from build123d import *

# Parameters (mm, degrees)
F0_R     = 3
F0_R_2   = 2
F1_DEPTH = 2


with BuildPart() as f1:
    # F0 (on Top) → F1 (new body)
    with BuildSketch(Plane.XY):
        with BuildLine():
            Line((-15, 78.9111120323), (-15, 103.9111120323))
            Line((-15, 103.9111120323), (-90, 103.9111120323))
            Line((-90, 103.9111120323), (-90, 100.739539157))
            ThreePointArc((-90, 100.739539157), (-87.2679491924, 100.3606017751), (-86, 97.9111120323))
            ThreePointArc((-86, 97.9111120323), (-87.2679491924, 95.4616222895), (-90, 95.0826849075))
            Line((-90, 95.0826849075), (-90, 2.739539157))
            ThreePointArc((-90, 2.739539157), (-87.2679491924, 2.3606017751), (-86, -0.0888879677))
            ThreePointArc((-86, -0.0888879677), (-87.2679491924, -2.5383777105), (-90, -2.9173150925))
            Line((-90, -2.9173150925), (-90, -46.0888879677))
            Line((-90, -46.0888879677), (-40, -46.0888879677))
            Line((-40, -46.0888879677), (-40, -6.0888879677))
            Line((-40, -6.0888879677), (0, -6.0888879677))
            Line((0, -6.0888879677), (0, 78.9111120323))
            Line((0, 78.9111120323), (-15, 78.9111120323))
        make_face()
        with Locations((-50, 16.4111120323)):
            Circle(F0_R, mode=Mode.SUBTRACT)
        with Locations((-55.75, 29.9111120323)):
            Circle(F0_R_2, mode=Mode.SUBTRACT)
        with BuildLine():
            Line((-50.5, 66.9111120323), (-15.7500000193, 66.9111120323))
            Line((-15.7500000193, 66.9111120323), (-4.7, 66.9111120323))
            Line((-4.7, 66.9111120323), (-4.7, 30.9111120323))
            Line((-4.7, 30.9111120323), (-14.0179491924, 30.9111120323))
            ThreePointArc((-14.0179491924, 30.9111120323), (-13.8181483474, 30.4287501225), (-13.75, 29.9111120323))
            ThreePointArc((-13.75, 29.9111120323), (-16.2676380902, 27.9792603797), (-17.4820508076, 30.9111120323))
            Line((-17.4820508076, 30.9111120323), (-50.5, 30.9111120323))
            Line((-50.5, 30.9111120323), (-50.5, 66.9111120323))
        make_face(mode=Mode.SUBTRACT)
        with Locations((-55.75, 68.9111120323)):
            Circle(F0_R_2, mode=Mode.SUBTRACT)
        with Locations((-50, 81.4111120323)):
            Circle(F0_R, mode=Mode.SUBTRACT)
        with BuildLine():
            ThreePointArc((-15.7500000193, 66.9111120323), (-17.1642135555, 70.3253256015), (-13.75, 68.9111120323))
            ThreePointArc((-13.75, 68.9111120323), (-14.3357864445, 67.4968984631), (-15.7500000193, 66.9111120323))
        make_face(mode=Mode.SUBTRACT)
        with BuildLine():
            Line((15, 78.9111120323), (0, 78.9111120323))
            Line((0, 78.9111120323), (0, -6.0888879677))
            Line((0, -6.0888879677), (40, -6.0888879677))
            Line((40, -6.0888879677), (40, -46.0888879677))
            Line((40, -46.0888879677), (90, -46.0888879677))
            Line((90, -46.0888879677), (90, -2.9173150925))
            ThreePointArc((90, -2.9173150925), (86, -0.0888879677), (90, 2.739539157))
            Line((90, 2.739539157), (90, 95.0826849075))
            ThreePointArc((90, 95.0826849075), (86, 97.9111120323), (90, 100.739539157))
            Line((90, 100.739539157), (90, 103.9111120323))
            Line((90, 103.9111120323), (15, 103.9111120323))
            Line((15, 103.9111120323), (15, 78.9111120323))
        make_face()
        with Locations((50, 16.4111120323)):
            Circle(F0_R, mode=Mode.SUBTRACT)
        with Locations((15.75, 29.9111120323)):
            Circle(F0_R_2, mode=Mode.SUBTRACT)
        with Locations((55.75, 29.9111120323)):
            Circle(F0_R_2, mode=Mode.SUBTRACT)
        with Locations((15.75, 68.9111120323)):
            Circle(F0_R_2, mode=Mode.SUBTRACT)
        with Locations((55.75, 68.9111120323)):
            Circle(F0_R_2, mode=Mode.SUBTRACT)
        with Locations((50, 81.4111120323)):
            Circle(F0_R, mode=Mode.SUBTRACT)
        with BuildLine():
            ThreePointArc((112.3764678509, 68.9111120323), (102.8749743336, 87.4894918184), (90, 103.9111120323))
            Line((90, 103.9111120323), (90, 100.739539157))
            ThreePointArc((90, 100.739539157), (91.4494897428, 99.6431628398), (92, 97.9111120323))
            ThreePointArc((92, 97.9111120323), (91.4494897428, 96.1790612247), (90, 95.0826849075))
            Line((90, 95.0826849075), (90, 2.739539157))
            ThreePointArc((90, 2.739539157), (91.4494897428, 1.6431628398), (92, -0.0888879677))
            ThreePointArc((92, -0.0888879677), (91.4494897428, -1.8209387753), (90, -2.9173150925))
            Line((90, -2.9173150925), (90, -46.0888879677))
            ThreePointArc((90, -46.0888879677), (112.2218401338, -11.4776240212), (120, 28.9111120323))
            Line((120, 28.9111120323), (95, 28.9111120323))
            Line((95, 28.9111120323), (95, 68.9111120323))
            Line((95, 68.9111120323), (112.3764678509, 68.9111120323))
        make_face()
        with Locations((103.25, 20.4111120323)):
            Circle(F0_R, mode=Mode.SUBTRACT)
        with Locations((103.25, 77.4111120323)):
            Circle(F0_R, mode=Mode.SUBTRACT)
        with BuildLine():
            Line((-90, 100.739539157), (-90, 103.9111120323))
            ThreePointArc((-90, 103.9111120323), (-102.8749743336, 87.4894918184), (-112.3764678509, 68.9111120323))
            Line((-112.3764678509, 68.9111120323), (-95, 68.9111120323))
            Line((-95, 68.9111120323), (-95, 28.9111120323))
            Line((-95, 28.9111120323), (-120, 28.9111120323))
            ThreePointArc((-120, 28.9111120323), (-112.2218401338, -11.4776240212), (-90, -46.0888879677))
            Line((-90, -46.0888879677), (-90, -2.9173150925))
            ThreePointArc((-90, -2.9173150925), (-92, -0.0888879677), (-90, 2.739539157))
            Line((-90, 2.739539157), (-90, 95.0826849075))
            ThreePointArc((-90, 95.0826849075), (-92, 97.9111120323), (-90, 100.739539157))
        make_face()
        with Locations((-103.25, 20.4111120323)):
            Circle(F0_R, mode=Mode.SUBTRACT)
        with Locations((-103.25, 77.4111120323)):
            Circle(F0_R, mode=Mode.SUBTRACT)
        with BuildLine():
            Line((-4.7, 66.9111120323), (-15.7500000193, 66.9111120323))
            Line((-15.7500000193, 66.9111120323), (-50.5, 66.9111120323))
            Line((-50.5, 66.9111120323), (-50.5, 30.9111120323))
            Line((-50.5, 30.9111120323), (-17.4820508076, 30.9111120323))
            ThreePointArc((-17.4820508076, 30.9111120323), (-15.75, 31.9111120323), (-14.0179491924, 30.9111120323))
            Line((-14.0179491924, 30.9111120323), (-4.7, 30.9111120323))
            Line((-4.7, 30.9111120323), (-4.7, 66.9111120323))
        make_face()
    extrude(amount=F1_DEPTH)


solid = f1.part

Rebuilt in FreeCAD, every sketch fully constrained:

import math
import FreeCAD as App
import Part
import Sketcher
Q = App.Units.Quantity

doc = App.newDocument("Part")
params = doc.addObject("Spreadsheet::Sheet", "Params")
for row, (alias, value) in enumerate([
    ("sketch1_diameter", "6 mm"),
    ("sketch1_diameter2", "4 mm"),
    ("sketch1_width", "30 mm"),
    ("sketch1_width2", "75 mm"),
    ("sketch1_width3", "25 mm"),
    ("pad1_length", "2 mm"),
], start=1):
    params.set(f"A{row}", alias)
    params.set(f"B{row}", "=" + value)
    params.setAlias(f"B{row}", alias)

body = doc.addObject("PartDesign::Body", "Body")

# Sketch on XY plane
sketch1 = body.newObject("Sketcher::SketchObject", "Sketch")
sketch1.AttachmentSupport = (doc.getObject("XY_Plane"), [""])
sketch1.MapMode = "FlatFace"
sketch1.addGeometry([
    Part.LineSegment(App.Vector(15, 78.911112, 0), App.Vector(-15, 78.911112, 0)),  # 0
    Part.LineSegment(App.Vector(-15, 78.911112, 0), App.Vector(-15, 103.911112, 0)),  # 1
    Part.LineSegment(App.Vector(-15, 103.911112, 0), App.Vector(-90, 103.911112, 0)),  # 2
    Part.ArcOfCircle(Part.Circle(App.Vector(-11.25, 28.911112, 0), App.Vector(0, 0, 1), 108.75), math.radians(136.397181), math.radians(158.419007)),  # 3
    Part.LineSegment(App.Vector(-112.376468, 68.911112, 0), App.Vector(-95, 68.911112, 0)),  # 4
    Part.LineSegment(App.Vector(-95, 68.911112, 0), App.Vector(-95, 28.911112, 0)),  # 5
    Part.LineSegment(App.Vector(-95, 28.911112, 0), App.Vector(-120, 28.911112, 0)),  # 6
    Part.ArcOfCircle(Part.Circle(App.Vector(-11.25, 28.911112, 0), App.Vector(0, 0, 1), 108.75), math.radians(180), math.radians(223.602819)),  # 7
    Part.LineSegment(App.Vector(-90, -46.088888, 0), App.Vector(-40, -46.088888, 0)),  # 8
    Part.LineSegment(App.Vector(-40, -46.088888, 0), App.Vector(-40, -6.088888, 0)),  # 9
    Part.LineSegment(App.Vector(-40, -6.088888, 0), App.Vector(40, -6.088888, 0)),  # 10
    Part.LineSegment(App.Vector(40, -6.088888, 0), App.Vector(40, -46.088888, 0)),  # 11
    Part.LineSegment(App.Vector(40, -46.088888, 0), App.Vector(90, -46.088888, 0)),  # 12
    Part.ArcOfCircle(Part.Circle(App.Vector(11.25, 28.911112, 0), App.Vector(0, 0, 1), 108.75), math.radians(-43.602819), math.radians(0)),  # 13
    Part.LineSegment(App.Vector(120, 28.911112, 0), App.Vector(95, 28.911112, 0)),  # 14
    Part.LineSegment(App.Vector(95, 28.911112, 0), App.Vector(95, 68.911112, 0)),  # 15
    Part.LineSegment(App.Vector(95, 68.911112, 0), App.Vector(112.376468, 68.911112, 0)),  # 16
    Part.ArcOfCircle(Part.Circle(App.Vector(11.25, 28.911112, 0), App.Vector(0, 0, 1), 108.75), math.radians(21.580993), math.radians(43.602819)),  # 17
    Part.LineSegment(App.Vector(90, 103.911112, 0), App.Vector(15, 103.911112, 0)),  # 18
    Part.LineSegment(App.Vector(15, 103.911112, 0), App.Vector(15, 78.911112, 0)),  # 19
    Part.ArcOfCircle(Part.Circle(App.Vector(-89, -0.088888, 0), App.Vector(0, 0, 1), 3), math.radians(-109.471221), math.radians(0)),  # 20
    Part.ArcOfCircle(Part.Circle(App.Vector(-89, -0.088888, 0), App.Vector(0, 0, 1), 3), math.radians(109.471221), math.radians(250.528779)),  # 21
    Part.ArcOfCircle(Part.Circle(App.Vector(-89, -0.088888, 0), App.Vector(0, 0, 1), 3), math.radians(0), math.radians(109.471221)),  # 22
    Part.Circle(App.Vector(-103.25, 20.411112, 0), App.Vector(0, 0, 1), 3),  # 23
    Part.Circle(App.Vector(-50, 16.411112, 0), App.Vector(0, 0, 1), 3),  # 24
    Part.Circle(App.Vector(-55.75, 29.911112, 0), App.Vector(0, 0, 1), 2),  # 25
    Part.ArcOfCircle(Part.Circle(App.Vector(-15.75, 29.911112, 0), App.Vector(0, 0, 1), 2), math.radians(150), math.radians(360)),  # 26
    Part.ArcOfCircle(Part.Circle(App.Vector(-15.75, 29.911112, 0), App.Vector(0, 0, 1), 2), math.radians(30), math.radians(150)),  # 27
    Part.ArcOfCircle(Part.Circle(App.Vector(-15.75, 29.911112, 0), App.Vector(0, 0, 1), 2), math.radians(0), math.radians(30)),  # 28
    Part.Circle(App.Vector(50, 16.411112, 0), App.Vector(0, 0, 1), 3),  # 29
    Part.Circle(App.Vector(89, -0.088888, 0), App.Vector(0, 0, 1), 3),  # 30
    Part.Circle(App.Vector(103.25, 20.411112, 0), App.Vector(0, 0, 1), 3),  # 31
    Part.Circle(App.Vector(15.75, 29.911112, 0), App.Vector(0, 0, 1), 2),  # 32
    Part.Circle(App.Vector(55.75, 29.911112, 0), App.Vector(0, 0, 1), 2),  # 33
    Part.Circle(App.Vector(-55.75, 68.911112, 0), App.Vector(0, 0, 1), 2),  # 34
    Part.ArcOfCircle(Part.Circle(App.Vector(-15.75, 68.911112, 0), App.Vector(0, 0, 1), 2), math.radians(-90.000001), math.radians(0)),  # 35
    Part.ArcOfCircle(Part.Circle(App.Vector(-15.75, 68.911112, 0), App.Vector(0, 0, 1), 2), math.radians(0), math.radians(269.999999)),  # 36
    Part.Circle(App.Vector(-103.25, 77.411112, 0), App.Vector(0, 0, 1), 3),  # 37
    Part.ArcOfCircle(Part.Circle(App.Vector(-89, 97.911112, 0), App.Vector(0, 0, 1), 3), math.radians(-109.471221), math.radians(0)),  # 38
    Part.ArcOfCircle(Part.Circle(App.Vector(-89, 97.911112, 0), App.Vector(0, 0, 1), 3), math.radians(109.471221), math.radians(250.528779)),  # 39
    Part.ArcOfCircle(Part.Circle(App.Vector(-89, 97.911112, 0), App.Vector(0, 0, 1), 3), math.radians(0), math.radians(109.471221)),  # 40
    Part.Circle(App.Vector(-50, 81.411112, 0), App.Vector(0, 0, 1), 3),  # 41
    Part.Circle(App.Vector(15.75, 68.911112, 0), App.Vector(0, 0, 1), 2),  # 42
    Part.Circle(App.Vector(55.75, 68.911112, 0), App.Vector(0, 0, 1), 2),  # 43
    Part.Circle(App.Vector(50, 81.411112, 0), App.Vector(0, 0, 1), 3),  # 44
    Part.Circle(App.Vector(103.25, 77.411112, 0), App.Vector(0, 0, 1), 3),  # 45
    Part.Circle(App.Vector(89, 97.911112, 0), App.Vector(0, 0, 1), 3),  # 46
], False)
sketch1.addConstraint([
    Sketcher.Constraint("Coincident", 0, 2, 1, 1),
    Sketcher.Constraint("Coincident", 1, 2, 2, 1),
    Sketcher.Constraint("Coincident", 2, 2, 3, 1),
    Sketcher.Constraint("Coincident", 3, 2, 4, 1),
    Sketcher.Constraint("Coincident", 4, 2, 5, 1),
    Sketcher.Constraint("Coincident", 5, 2, 6, 1),
    Sketcher.Constraint("Coincident", 6, 2, 7, 1),
    Sketcher.Constraint("Coincident", 7, 2, 8, 1),
    Sketcher.Constraint("Coincident", 8, 2, 9, 1),
    Sketcher.Constraint("Coincident", 9, 2, 10, 1),
    Sketcher.Constraint("Coincident", 10, 2, 11, 1),
    Sketcher.Constraint("Coincident", 11, 2, 12, 1),
    Sketcher.Constraint("Coincident", 12, 2, 13, 1),
    Sketcher.Constraint("Coincident", 13, 2, 14, 1),
    Sketcher.Constraint("Coincident", 14, 2, 15, 1),
    Sketcher.Constraint("Coincident", 15, 2, 16, 1),
    Sketcher.Constraint("Coincident", 16, 2, 17, 1),
    Sketcher.Constraint("Coincident", 17, 2, 18, 1),
    Sketcher.Constraint("Coincident", 18, 2, 19, 1),
    Sketcher.Constraint("Coincident", 19, 2, 0, 1),
    Sketcher.Constraint("Tangent", 20, 1, 21, 2),
    Sketcher.Constraint("Tangent", 21, 1, 22, 2),
    Sketcher.Constraint("Tangent", 22, 1, 20, 2),
    Sketcher.Constraint("Tangent", 26, 1, 27, 2),
    Sketcher.Constraint("Tangent", 27, 1, 28, 2),
    Sketcher.Constraint("Tangent", 28, 1, 26, 2),
    Sketcher.Constraint("Tangent", 35, 1, 36, 2),
    Sketcher.Constraint("Coincident", 36, 1, 35, 2),
    Sketcher.Constraint("Tangent", 38, 1, 39, 2),
    Sketcher.Constraint("Tangent", 39, 1, 40, 2),
    Sketcher.Constraint("Tangent", 40, 1, 38, 2),
    Sketcher.Constraint("Horizontal", 0),
    Sketcher.Constraint("Vertical", 1),
    Sketcher.Constraint("Horizontal", 2),
    Sketcher.Constraint("Horizontal", 4),
    Sketcher.Constraint("Vertical", 5),
    Sketcher.Constraint("Horizontal", 6),
    Sketcher.Constraint("Horizontal", 8),
    Sketcher.Constraint("Vertical", 9),
    Sketcher.Constraint("Horizontal", 10),
    Sketcher.Constraint("Vertical", 11),
    Sketcher.Constraint("Horizontal", 12),
    Sketcher.Constraint("Horizontal", 14),
    Sketcher.Constraint("Vertical", 15),
    Sketcher.Constraint("Horizontal", 16),
    Sketcher.Constraint("Horizontal", 18),
    Sketcher.Constraint("Vertical", 19),
    Sketcher.Constraint("Coincident", 7, 3, 3, 3),
    Sketcher.Constraint("Coincident", 17, 3, 13, 3),
    Sketcher.Constraint("Equal", 3, 7),
    Sketcher.Constraint("Equal", 7, 13),
    Sketcher.Constraint("Equal", 13, 17),
    Sketcher.Constraint("Equal", 22, 23),
    Sketcher.Constraint("Equal", 23, 24),
    Sketcher.Constraint("Equal", 25, 26),
    Sketcher.Constraint("Equal", 24, 29),
    Sketcher.Constraint("Equal", 29, 30),
    Sketcher.Constraint("Equal", 30, 31),
    Sketcher.Constraint("Equal", 28, 32),
    Sketcher.Constraint("Equal", 32, 33),
    Sketcher.Constraint("Equal", 33, 34),
    Sketcher.Constraint("Equal", 34, 35),
    Sketcher.Constraint("Equal", 31, 37),
    Sketcher.Constraint("Equal", 37, 38),
    Sketcher.Constraint("Equal", 40, 41),
    Sketcher.Constraint("Equal", 36, 42),
    Sketcher.Constraint("Equal", 42, 43),
    Sketcher.Constraint("Equal", 41, 44),
    Sketcher.Constraint("Equal", 44, 45),
    Sketcher.Constraint("Equal", 45, 46),
    Sketcher.Constraint("Symmetric", 3, 3, 13, 3, -2),
    Sketcher.Constraint("Symmetric", 24, 3, 29, 3, -2),
    Sketcher.Constraint("Symmetric", 20, 3, 30, 3, -2),
    Sketcher.Constraint("Symmetric", 23, 3, 31, 3, -2),
    Sketcher.Constraint("Symmetric", 26, 3, 32, 3, -2),
    Sketcher.Constraint("Symmetric", 25, 3, 33, 3, -2),
    Sketcher.Constraint("Symmetric", 35, 3, 42, 3, -2),
    Sketcher.Constraint("Symmetric", 34, 3, 43, 3, -2),
    Sketcher.Constraint("Symmetric", 41, 3, 44, 3, -2),
    Sketcher.Constraint("Symmetric", 37, 3, 45, 3, -2),
    Sketcher.Constraint("Symmetric", 38, 3, 46, 3, -2),
    Sketcher.Constraint("Symmetric", 8, 2, 11, 2, -2),
    Sketcher.Constraint("Symmetric", 5, 2, 14, 2, -2),
    Sketcher.Constraint("Symmetric", 1, 2, 18, 2, -2),
    Sketcher.Constraint("Horizontal", 25, 3, 26, 3),
    Sketcher.Constraint("Horizontal", 34, 3, 35, 3),
    Sketcher.Constraint("Horizontal", 43, 3, 3, 2),
    Sketcher.Constraint("Horizontal", 17, 3, 5, 2),
    Sketcher.Constraint("Horizontal", 4, 2, 15, 2),
    Sketcher.Constraint("Horizontal", 30, 3, 22, 1),
    Sketcher.Constraint("Horizontal", 26, 1, 27, 1),
    Sketcher.Constraint("Horizontal", 33, 3, 28, 1),
    Sketcher.Constraint("Horizontal", 16, 2, 36, 1),
    Sketcher.Constraint("Horizontal", 46, 3, 40, 1),
    Sketcher.Constraint("Vertical", 25, 3, 34, 3),
    Sketcher.Constraint("Vertical", 28, 3, 35, 3),
    Sketcher.Constraint("Vertical", 23, 3, 37, 3),
    Sketcher.Constraint("Vertical", 22, 3, 38, 3),
    Sketcher.Constraint("Vertical", 24, 3, 41, 3),
    Sketcher.Constraint("Vertical", 2, 2, 7, 2),
    Sketcher.Constraint("Vertical", 7, 2, 20, 1),
    Sketcher.Constraint("Vertical", 20, 1, 21, 1),
    Sketcher.Constraint("Vertical", 36, 3, 35, 1),
    Sketcher.Constraint("Vertical", 21, 1, 38, 1),
    Sketcher.Constraint("Vertical", 38, 1, 39, 1),
    Sketcher.Constraint("Equal", 14, 1),
    Sketcher.Constraint("Equal", 5, 9),
    Sketcher.Constraint("Diameter", 23, Q("6 mm")),
    Sketcher.Constraint("Diameter", 25, Q("4 mm")),
    Sketcher.Constraint("DistanceX", 0, 2, 0, 1, Q("30 mm")),
    Sketcher.Constraint("DistanceX", 2, 2, 2, 1, Q("75 mm")),
    Sketcher.Constraint("DistanceX", 6, 2, 6, 1, Q("25 mm")),
    Sketcher.Constraint("DistanceX", 8, 1, 8, 2, Q("50 mm")),
    Sketcher.Constraint("DistanceY", 5, 2, 5, 1, Q("40 mm")),
    Sketcher.Constraint("Radius", 3, Q("108.75 mm")),
    Sketcher.Constraint("DistanceX", 20, 3, -1, 1, Q("89 mm")),
    Sketcher.Constraint("DistanceX", 24, 3, -1, 1, Q("50 mm")),
    Sketcher.Constraint("DistanceX", 4, 2, -1, 1, Q("95 mm")),
    Sketcher.Constraint("DistanceX", 23, 3, -1, 1, Q("103.25 mm")),
    Sketcher.Constraint("DistanceX", 25, 3, -1, 1, Q("55.75 mm")),
    Sketcher.Constraint("DistanceX", 26, 3, -1, 1, Q("15.75 mm")),
    Sketcher.Constraint("DistanceY", -1, 1, 21, 1, Q("2.739539 mm")),
    Sketcher.Constraint("DistanceX", 26, 1, -1, 1, Q("17.482051 mm")),
    Sketcher.Constraint("DistanceY", -1, 1, 39, 1, Q("100.739539 mm")),
    Sketcher.Constraint("DistanceY", -1, 1, 3, 3, Q("28.911112 mm")),
    Sketcher.Constraint("DistanceY", -1, 1, 23, 3, Q("20.411112 mm")),
    Sketcher.Constraint("DistanceY", -1, 1, 24, 3, Q("16.411112 mm")),
    Sketcher.Constraint("DistanceY", -1, 1, 25, 3, Q("29.911112 mm")),
    Sketcher.Constraint("DistanceY", -1, 1, 37, 3, Q("77.411112 mm")),
    Sketcher.Constraint("DistanceY", -1, 1, 41, 3, Q("81.411112 mm")),
])
sketch1.setExpression("Constraints[107]", "Params.sketch1_diameter")
sketch1.setExpression("Constraints[108]", "Params.sketch1_diameter2")
sketch1.setExpression("Constraints[109]", "Params.sketch1_width")
sketch1.setExpression("Constraints[110]", "Params.sketch1_width2")
sketch1.setExpression("Constraints[111]", "Params.sketch1_width3")
pad1 = body.newObject("PartDesign::Pad", "Pad")
pad1.Profile = sketch1
pad1.setExpression("Length", "Params.pad1_length")

doc.recompute()
